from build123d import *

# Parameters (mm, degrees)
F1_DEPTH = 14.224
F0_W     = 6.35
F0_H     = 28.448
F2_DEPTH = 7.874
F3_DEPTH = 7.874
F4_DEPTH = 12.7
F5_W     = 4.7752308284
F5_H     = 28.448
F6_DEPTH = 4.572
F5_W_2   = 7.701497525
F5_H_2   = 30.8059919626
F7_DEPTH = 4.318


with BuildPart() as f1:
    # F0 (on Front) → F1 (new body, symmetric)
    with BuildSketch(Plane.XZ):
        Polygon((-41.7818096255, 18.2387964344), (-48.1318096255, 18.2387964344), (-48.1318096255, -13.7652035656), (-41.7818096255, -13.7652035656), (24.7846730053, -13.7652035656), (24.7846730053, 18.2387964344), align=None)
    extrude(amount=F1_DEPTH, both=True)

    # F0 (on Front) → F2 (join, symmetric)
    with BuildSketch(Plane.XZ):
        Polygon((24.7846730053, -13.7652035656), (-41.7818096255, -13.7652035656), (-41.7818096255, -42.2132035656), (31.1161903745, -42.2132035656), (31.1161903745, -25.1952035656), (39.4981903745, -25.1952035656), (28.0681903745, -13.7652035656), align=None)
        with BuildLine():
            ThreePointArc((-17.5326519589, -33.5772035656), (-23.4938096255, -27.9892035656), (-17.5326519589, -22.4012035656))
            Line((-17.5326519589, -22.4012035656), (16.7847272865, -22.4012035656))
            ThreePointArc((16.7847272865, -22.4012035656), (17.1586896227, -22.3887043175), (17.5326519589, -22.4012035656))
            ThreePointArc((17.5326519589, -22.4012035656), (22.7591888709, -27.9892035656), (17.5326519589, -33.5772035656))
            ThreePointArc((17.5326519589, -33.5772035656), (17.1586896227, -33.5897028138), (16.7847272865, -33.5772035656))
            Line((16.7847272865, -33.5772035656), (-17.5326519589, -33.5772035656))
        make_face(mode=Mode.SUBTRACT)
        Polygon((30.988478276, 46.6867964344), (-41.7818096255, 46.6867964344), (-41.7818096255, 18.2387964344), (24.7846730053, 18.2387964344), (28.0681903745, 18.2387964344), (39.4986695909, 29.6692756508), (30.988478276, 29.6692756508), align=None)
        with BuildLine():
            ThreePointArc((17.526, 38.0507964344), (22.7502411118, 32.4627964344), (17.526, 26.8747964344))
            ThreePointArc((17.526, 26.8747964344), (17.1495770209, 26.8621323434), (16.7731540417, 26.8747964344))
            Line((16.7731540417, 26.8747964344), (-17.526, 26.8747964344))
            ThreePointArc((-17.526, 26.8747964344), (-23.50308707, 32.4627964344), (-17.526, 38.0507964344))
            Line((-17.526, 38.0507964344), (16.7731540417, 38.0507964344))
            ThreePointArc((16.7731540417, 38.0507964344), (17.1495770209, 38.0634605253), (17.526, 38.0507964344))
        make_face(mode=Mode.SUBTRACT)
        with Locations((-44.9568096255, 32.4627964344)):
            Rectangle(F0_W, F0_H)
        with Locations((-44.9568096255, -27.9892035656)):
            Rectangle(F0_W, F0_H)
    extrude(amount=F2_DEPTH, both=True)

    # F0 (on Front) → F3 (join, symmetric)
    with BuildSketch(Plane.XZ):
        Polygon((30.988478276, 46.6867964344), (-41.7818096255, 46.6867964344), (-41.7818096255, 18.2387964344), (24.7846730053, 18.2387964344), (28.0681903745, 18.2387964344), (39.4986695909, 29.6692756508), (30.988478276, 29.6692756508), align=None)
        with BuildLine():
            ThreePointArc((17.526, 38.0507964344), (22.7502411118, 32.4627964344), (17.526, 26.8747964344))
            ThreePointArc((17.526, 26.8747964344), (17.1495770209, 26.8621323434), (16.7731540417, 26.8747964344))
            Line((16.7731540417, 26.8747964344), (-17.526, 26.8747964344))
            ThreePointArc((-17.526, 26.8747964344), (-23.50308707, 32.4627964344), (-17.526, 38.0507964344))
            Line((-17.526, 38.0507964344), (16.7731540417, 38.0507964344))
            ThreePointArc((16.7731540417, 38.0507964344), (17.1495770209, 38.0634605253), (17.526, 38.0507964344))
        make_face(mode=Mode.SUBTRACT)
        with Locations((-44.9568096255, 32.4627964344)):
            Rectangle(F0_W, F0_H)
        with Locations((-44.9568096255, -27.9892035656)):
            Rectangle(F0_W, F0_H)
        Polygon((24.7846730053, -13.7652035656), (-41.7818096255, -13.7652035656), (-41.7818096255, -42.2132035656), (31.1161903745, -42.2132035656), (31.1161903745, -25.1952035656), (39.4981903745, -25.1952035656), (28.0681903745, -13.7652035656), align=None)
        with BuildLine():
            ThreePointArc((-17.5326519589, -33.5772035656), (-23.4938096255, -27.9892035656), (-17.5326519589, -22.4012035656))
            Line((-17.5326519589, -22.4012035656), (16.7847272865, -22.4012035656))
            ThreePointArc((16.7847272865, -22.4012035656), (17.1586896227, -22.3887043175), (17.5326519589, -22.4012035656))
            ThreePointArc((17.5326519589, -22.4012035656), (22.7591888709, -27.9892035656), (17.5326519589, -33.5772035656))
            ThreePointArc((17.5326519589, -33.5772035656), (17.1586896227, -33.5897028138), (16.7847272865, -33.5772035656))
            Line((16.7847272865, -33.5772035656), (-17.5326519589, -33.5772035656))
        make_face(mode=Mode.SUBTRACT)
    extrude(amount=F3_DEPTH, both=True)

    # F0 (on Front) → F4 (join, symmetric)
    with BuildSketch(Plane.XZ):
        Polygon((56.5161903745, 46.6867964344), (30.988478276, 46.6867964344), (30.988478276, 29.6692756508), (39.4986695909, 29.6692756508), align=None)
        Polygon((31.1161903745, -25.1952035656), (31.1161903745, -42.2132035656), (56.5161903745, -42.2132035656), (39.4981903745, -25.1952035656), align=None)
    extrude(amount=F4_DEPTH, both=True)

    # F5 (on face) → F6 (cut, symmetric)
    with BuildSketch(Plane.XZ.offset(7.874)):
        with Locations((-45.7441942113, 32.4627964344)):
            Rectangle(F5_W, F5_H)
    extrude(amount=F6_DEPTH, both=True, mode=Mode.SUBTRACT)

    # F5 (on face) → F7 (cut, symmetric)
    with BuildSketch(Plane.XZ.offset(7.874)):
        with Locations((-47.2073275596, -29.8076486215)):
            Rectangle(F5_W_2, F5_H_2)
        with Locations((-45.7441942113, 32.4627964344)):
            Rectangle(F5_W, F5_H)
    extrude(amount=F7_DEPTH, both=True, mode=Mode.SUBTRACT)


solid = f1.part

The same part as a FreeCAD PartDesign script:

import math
import FreeCAD as App
import Part
import Sketcher

V = App.Vector
Q = App.Units.Quantity

doc = App.newDocument("Part")
body = doc.addObject("PartDesign::Body", "Body")

sketch1 = doc.addObject("Sketcher::SketchObject", "Sketch")
body.addObject(sketch1)
sketch1.AttachmentSupport = (doc.XZ_Plane, [""])
sketch1.MapMode = "FlatFace"
sketch1.addGeometry(Part.LineSegment(V(-48, 18, 0), V(-48, -14, 0)), False)
sketch1.addGeometry(Part.LineSegment(V(-48, -14, 0), V(25, -14, 0)), False)
sketch1.addGeometry(Part.LineSegment(V(25, -14, 0), V(25, 18, 0)), False)
sketch1.addGeometry(Part.LineSegment(V(25, 18, 0), V(-48, 18, 0)), False)
sketch1.addConstraint(Sketcher.Constraint("Coincident", 0, 2, 1, 1))
sketch1.addConstraint(Sketcher.Constraint("Coincident", 1, 2, 2, 1))
sketch1.addConstraint(Sketcher.Constraint("Coincident", 2, 2, 3, 1))
sketch1.addConstraint(Sketcher.Constraint("Coincident", 3, 2, 0, 1))
sketch1.addConstraint(Sketcher.Constraint("Vertical", 0))
sketch1.addConstraint(Sketcher.Constraint("Horizontal", 1))
sketch1.addConstraint(Sketcher.Constraint("Vertical", 2))
sketch1.addConstraint(Sketcher.Constraint("Horizontal", 3))
sketch1.addConstraint(Sketcher.Constraint("DistanceY", 0, 2, 0, 1, Q("1.26 in")))
sketch1.addConstraint(Sketcher.Constraint("DistanceX", 1, 1, 1, 2, Q("72.916483 mm")))
sketch1.addConstraint(Sketcher.Constraint("DistanceX", 0, 2, -1, 1, Q("48.13181 mm")))
sketch1.addConstraint(Sketcher.Constraint("DistanceY", 0, 2, -1, 1, Q("13.765204 mm")))
pad1 = doc.addObject("PartDesign::Pad", "Pad")
body.addObject(pad1)
pad1.Profile = sketch1
pad1.Length = Q("1.12 in")
pad1.Midplane = True

sketch2 = doc.addObject("Sketcher::SketchObject", "Sketch001")
body.addObject(sketch2)
sketch2.AttachmentSupport = (doc.XZ_Plane, [""])
sketch2.MapMode = "FlatFace"
sketch2.addGeometry(Part.LineSegment(V(28.1, -13.8, 0), V(-48.1, -13.8, 0)), False)
sketch2.addGeometry(Part.LineSegment(V(-48.1, -13.8, 0), V(-48.1, -42.2, 0)), False)
sketch2.addGeometry(Part.LineSegment(V(-48.1, -42.2, 0), V(31.1, -42.2, 0)), False)
sketch2.addGeometry(Part.LineSegment(V(31.1, -42.2, 0), V(31.1, -25.2, 0)), False)
sketch2.addGeometry(Part.LineSegment(V(31.1, -25.2, 0), V(39.5, -25.2, 0)), False)
sketch2.addGeometry(Part.LineSegment(V(39.5, -25.2, 0), V(28.1, -13.8, 0)), False)
sketch2.addGeometry(Part.LineSegment(V(16.8, -33.6, 0), V(-17.5, -33.6, 0)), False)
sketch2.addGeometry(Part.ArcOfCircle(Part.Circle(V(-17.9, -28, 0), V(0, 0, 1), 5.6), math.radians(86), math.radians(274)), False)
sketch2.addGeometry(Part.LineSegment(V(-17.5, -22.4, 0), V(16.8, -22.4, 0)), False)
sketch2.addGeometry(Part.ArcOfCircle(Part.Circle(V(17.2, -28, 0), V(0, 0, 1), 5.6), math.radians(86.17), math.radians(93.83)), False)
sketch2.addGeometry(Part.ArcOfCircle(Part.Circle(V(17.2, -28, 0), V(0, 0, 1), 5.6), math.radians(-86), math.radians(86)), False)
sketch2.addGeometry(Part.ArcOfCircle(Part.Circle(V(17.2, -28, 0), V(0, 0, 1), 5.6), math.radians(-93.83), math.radians(-86.17)), False)
sketch2.addGeometry(Part.LineSegment(V(31, 46.7, 0), V(-48.1, 46.7, 0)), False)
sketch2.addGeometry(Part.LineSegment(V(-48.1, 46.7, 0), V(-48.1, 18.2, 0)), False)
sketch2.addGeometry(Part.LineSegment(V(-48.1, 18.2, 0), V(28.1, 18.2, 0)), False)
sketch2.addGeometry(Part.LineSegment(V(28.1, 18.2, 0), V(39.5, 29.7, 0)), False)
sketch2.addGeometry(Part.LineSegment(V(39.5, 29.7, 0), V(31, 29.7, 0)), False)
sketch2.addGeometry(Part.LineSegment(V(31, 29.7, 0), V(31, 46.7, 0)), False)
sketch2.addGeometry(Part.ArcOfCircle(Part.Circle(V(17.1, 32.5, 0), V(0, 0, 1), 5.6), math.radians(86.15), math.radians(93.85)), False)
sketch2.addGeometry(Part.ArcOfCircle(Part.Circle(V(17.1, 32.5, 0), V(0, 0, 1), 5.6), math.radians(-86), math.radians(86)), False)
sketch2.addGeometry(Part.ArcOfCircle(Part.Circle(V(17.1, 32.5, 0), V(0, 0, 1), 5.6), math.radians(-93.85), math.radians(-86.15)), False)
sketch2.addGeometry(Part.LineSegment(V(16.8, 26.9, 0), V(-17.5, 26.9, 0)), False)
sketch2.addGeometry(Part.ArcOfCircle(Part.Circle(V(-17.9, 32.5, 0), V(0, 0, 1), 5.6), math.radians(86), math.radians(274)), False)
sketch2.addGeometry(Part.LineSegment(V(-17.5, 38.1, 0), V(16.8, 38.1, 0)), False)
sketch2.addConstraint(Sketcher.Constraint("Coincident", 0, 2, 1, 1))
sketch2.addConstraint(Sketcher.Constraint("Coincident", 1, 2, 2, 1))
sketch2.addConstraint(Sketcher.Constraint("Coincident", 2, 2, 3, 1))
sketch2.addConstraint(Sketcher.Constraint("Coincident", 3, 2, 4, 1))
sketch2.addConstraint(Sketcher.Constraint("Coincident", 4, 2, 5, 1))
sketch2.addConstraint(Sketcher.Constraint("Coincident", 5, 2, 0, 1))
sketch2.addConstraint(Sketcher.Constraint("Coincident", 6, 2, 7, 2))
sketch2.addConstraint(Sketcher.Constraint("Coincident", 7, 1, 8, 1))
sketch2.addConstraint(Sketcher.Constraint("Coincident", 8, 2, 9, 2))
sketch2.addConstraint(Sketcher.Constraint("Tangent", 9, 1, 10, 2))
sketch2.addConstraint(Sketcher.Constraint("Tangent", 10, 1, 11, 2))
sketch2.addConstraint(Sketcher.Constraint("Coincident", 11, 1, 6, 1))
sketch2.addConstraint(Sketcher.Constraint("Coincident", 12, 2, 13, 1))
sketch2.addConstraint(Sketcher.Constraint("Coincident", 13, 2, 14, 1))
sketch2.addConstraint(Sketcher.Constraint("Coincident", 14, 2, 15, 1))
sketch2.addConstraint(Sketcher.Constraint("Coincident", 15, 2, 16, 1))
sketch2.addConstraint(Sketcher.Constraint("Coincident", 16, 2, 17, 1))
sketch2.addConstraint(Sketcher.Constraint("Coincident", 17, 2, 12, 1))
sketch2.addConstraint(Sketcher.Constraint("Tangent", 18, 1, 19, 2))
sketch2.addConstraint(Sketcher.Constraint("Tangent", 19, 1, 20, 2))
sketch2.addConstraint(Sketcher.Constraint("Coincident", 20, 1, 21, 1))
sketch2.addConstraint(Sketcher.Constraint("Coincident", 21, 2, 22, 2))
sketch2.addConstraint(Sketcher.Constraint("Coincident", 22, 1, 23, 1))
sketch2.addConstraint(Sketcher.Constraint("Coincident", 23, 2, 18, 2))
sketch2.addConstraint(Sketcher.Constraint("Horizontal", 0))
sketch2.addConstraint(Sketcher.Constraint("Vertical", 1))
sketch2.addConstraint(Sketcher.Constraint("Horizontal", 2))
sketch2.addConstraint(Sketcher.Constraint("Vertical", 3))
sketch2.addConstraint(Sketcher.Constraint("Horizontal", 4))
sketch2.addConstraint(Sketcher.Constraint("Horizontal", 6))
sketch2.addConstraint(Sketcher.Constraint("Horizontal", 8))
sketch2.addConstraint(Sketcher.Constraint("Horizontal", 12))
sketch2.addConstraint(Sketcher.Constraint("Vertical", 13))
sketch2.addConstraint(Sketcher.Constraint("Horizontal", 14))
sketch2.addConstraint(Sketcher.Constraint("Horizontal", 16))
sketch2.addConstraint(Sketcher.Constraint("Vertical", 17))
sketch2.addConstraint(Sketcher.Constraint("Horizontal", 21))
sketch2.addConstraint(Sketcher.Constraint("Horizontal", 23))
sketch2.addConstraint(Sketcher.Constraint("Coincident", 11, 3, 9, 3))
sketch2.addConstraint(Sketcher.Constraint("Coincident", 20, 3, 18, 3))
sketch2.addConstraint(Sketcher.Constraint("Equal", 20, 22))
sketch2.addConstraint(Sketcher.Constraint("Symmetric", 7, 1, 9, 1, -2))
sketch2.addConstraint(Sketcher.Constraint("Symmetric", 6, 2, 10, 1, -2))
sketch2.addConstraint(Sketcher.Constraint("Symmetric", 19, 1, 21, 2, -2))
sketch2.addConstraint(Sketcher.Constraint("Symmetric", 18, 1, 22, 1, -2))
sketch2.addConstraint(Sketcher.Constraint("Perpendicular", 5, 15))
sketch2.addConstraint(Sketcher.Constraint("Horizontal", 7, 3, 9, 3))
sketch2.addConstraint(Sketcher.Constraint("Horizontal", 20, 3, 22, 3))
sketch2.addConstraint(Sketcher.Constraint("Vertical", 1, 2, 12, 2))
sketch2.addConstraint(Sketcher.Constraint("Vertical", 5, 2, 14, 2))
sketch2.addConstraint(Sketcher.Constraint("Equal", 1, 13))
sketch2.addConstraint(Sketcher.Constraint("DistanceX", 0, 2, 0, 1, Q("3 in")))
sketch2.addConstraint(Sketcher.Constraint("Angle", 5, Q("135 deg")))
sketch2.addConstraint(Sketcher.Constraint("DistanceX", 2, 1, 2, 2, Q("3.12 in")))
sketch2.addConstraint(Sketcher.Constraint("DistanceX", 4, 1, 4, 2, Q("0.33 in")))
sketch2.addConstraint(Sketcher.Constraint("DistanceY", 1, 2, 1, 1, Q("1.12 in")))
sketch2.addConstraint(Sketcher.Constraint("DistanceY", 7, 1, 13, 2, Q("1.6 in")))
sketch2.addConstraint(Sketcher.Constraint("DistanceX", -1, 1, 18, 1, Q("0.69 in")))
sketch2.addConstraint(Sketcher.Constraint("Radius", 9, Q("5.600499 mm")))
sketch2.addConstraint(Sketcher.Constraint("DistanceY", 10, 3, 18, 3, Q("2.38 in")))
sketch2.addConstraint(Sketcher.Constraint("DistanceY", 7, 3, 0, 2, Q("0.56 in")))
sketch2.addConstraint(Sketcher.Constraint("DistanceY", 6, 2, 7, 3, Q("0.22 in")))
sketch2.addConstraint(Sketcher.Constraint("DistanceY", 19, 3, 18, 1, Q("0.22 in")))
sketch2.addConstraint(Sketcher.Constraint("Radius", 7, Q("5.599679 mm")))
sketch2.addConstraint(Sketcher.Constraint("Radius", 18, Q("5.600664 mm")))
sketch2.addConstraint(Sketcher.Constraint("DistanceX", 6, 2, 6, 1, Q("34.317379 mm")))
sketch2.addConstraint(Sketcher.Constraint("DistanceX", 16, 2, 16, 1, Q("8.510191 mm")))
sketch2.addConstraint(Sketcher.Constraint("DistanceY", 17, 1, 17, 2, Q("17.017521 mm")))
sketch2.addConstraint(Sketcher.Constraint("DistanceX", 0, 2, 10, 3, Q("65.290499 mm")))
sketch2.addConstraint(Sketcher.Constraint("DistanceY", 7, 3, -1, 1, Q("27.989204 mm")))
pad2 = doc.addObject("PartDesign::Pad", "Pad001")
body.addObject(pad2)
pad2.Profile = sketch2
pad2.Length = Q("0.62 in")
pad2.Midplane = True

sketch3 = doc.addObject("Sketcher::SketchObject", "Sketch002")
body.addObject(sketch3)
sketch3.AttachmentSupport = (doc.XZ_Plane, [""])
sketch3.MapMode = "FlatFace"
sketch3.addGeometry(Part.LineSegment(V(31, 46.7, 0), V(-48.1, 46.7, 0)), False)
sketch3.addGeometry(Part.LineSegment(V(-48.1, 46.7, 0), V(-48.1, 18.2, 0)), False)
sketch3.addGeometry(Part.LineSegment(V(-48.1, 18.2, 0), V(28.1, 18.2, 0)), False)
sketch3.addGeometry(Part.LineSegment(V(28.1, 18.2, 0), V(39.5, 29.7, 0)), False)
sketch3.addGeometry(Part.LineSegment(V(39.5, 29.7, 0), V(31, 29.7, 0)), False)
sketch3.addGeometry(Part.LineSegment(V(31, 29.7, 0), V(31, 46.7, 0)), False)
sketch3.addGeometry(Part.ArcOfCircle(Part.Circle(V(17.1, 32.5, 0), V(0, 0, 1), 5.6), math.radians(86.15), math.radians(93.85)), False)
sketch3.addGeometry(Part.ArcOfCircle(Part.Circle(V(17.1, 32.5, 0), V(0, 0, 1), 5.6), math.radians(-86), math.radians(86)), False)
sketch3.addGeometry(Part.ArcOfCircle(Part.Circle(V(17.1, 32.5, 0), V(0, 0, 1), 5.6), math.radians(-93.85), math.radians(-86.15)), False)
sketch3.addGeometry(Part.LineSegment(V(16.8, 26.9, 0), V(-17.5, 26.9, 0)), False)
sketch3.addGeometry(Part.ArcOfCircle(Part.Circle(V(-17.9, 32.5, 0), V(0, 0, 1), 5.6), math.radians(86), math.radians(274)), False)
sketch3.addGeometry(Part.LineSegment(V(-17.5, 38.1, 0), V(16.8, 38.1, 0)), False)
sketch3.addGeometry(Part.LineSegment(V(-48.1, -13.8, 0), V(-48.1, -42.2, 0)), False)
sketch3.addGeometry(Part.LineSegment(V(-48.1, -42.2, 0), V(31.1, -42.2, 0)), False)
sketch3.addGeometry(Part.LineSegment(V(31.1, -42.2, 0), V(31.1, -25.2, 0)), False)
sketch3.addGeometry(Part.LineSegment(V(31.1, -25.2, 0), V(39.5, -25.2, 0)), False)
sketch3.addGeometry(Part.LineSegment(V(39.5, -25.2, 0), V(28.1, -13.8, 0)), False)
sketch3.addGeometry(Part.LineSegment(V(28.1, -13.8, 0), V(-48.1, -13.8, 0)), False)
sketch3.addGeometry(Part.LineSegment(V(16.8, -33.6, 0), V(-17.5, -33.6, 0)), False)
sketch3.addGeometry(Part.ArcOfCircle(Part.Circle(V(-17.9, -28, 0), V(0, 0, 1), 5.6), math.radians(86), math.radians(274)), False)
sketch3.addGeometry(Part.LineSegment(V(-17.5, -22.4, 0), V(16.8, -22.4, 0)), False)
sketch3.addGeometry(Part.ArcOfCircle(Part.Circle(V(17.2, -28, 0), V(0, 0, 1), 5.6), math.radians(86.17), math.radians(93.83)), False)
sketch3.addGeometry(Part.ArcOfCircle(Part.Circle(V(17.2, -28, 0), V(0, 0, 1), 5.6), math.radians(-86), math.radians(86)), False)
sketch3.addGeometry(Part.ArcOfCircle(Part.Circle(V(17.2, -28, 0), V(0, 0, 1), 5.6), math.radians(-93.83), math.radians(-86.17)), False)
sketch3.addConstraint(Sketcher.Constraint("Coincident", 0, 2, 1, 1))
sketch3.addConstraint(Sketcher.Constraint("Coincident", 1, 2, 2, 1))
sketch3.addConstraint(Sketcher.Constraint("Coincident", 2, 2, 3, 1))
sketch3.addConstraint(Sketcher.Constraint("Coincident", 3, 2, 4, 1))
sketch3.addConstraint(Sketcher.Constraint("Coincident", 4, 2, 5, 1))
sketch3.addConstraint(Sketcher.Constraint("Coincident", 5, 2, 0, 1))
sketch3.addConstraint(Sketcher.Constraint("Tangent", 6, 1, 7, 2))
sketch3.addConstraint(Sketcher.Constraint("Tangent", 7, 1, 8, 2))
sketch3.addConstraint(Sketcher.Constraint("Coincident", 8, 1, 9, 1))
sketch3.addConstraint(Sketcher.Constraint("Coincident", 9, 2, 10, 2))
sketch3.addConstraint(Sketcher.Constraint("Coincident", 10, 1, 11, 1))
sketch3.addConstraint(Sketcher.Constraint("Coincident", 11, 2, 6, 2))
sketch3.addConstraint(Sketcher.Constraint("Coincident", 12, 2, 13, 1))
sketch3.addConstraint(Sketcher.Constraint("Coincident", 13, 2, 14, 1))
sketch3.addConstraint(Sketcher.Constraint("Coincident", 14, 2, 15, 1))
sketch3.addConstraint(Sketcher.Constraint("Coincident", 15, 2, 16, 1))
sketch3.addConstraint(Sketcher.Constraint("Coincident", 16, 2, 17, 1))
sketch3.addConstraint(Sketcher.Constraint("Coincident", 17, 2, 12, 1))
sketch3.addConstraint(Sketcher.Constraint("Coincident", 18, 2, 19, 2))
sketch3.addConstraint(Sketcher.Constraint("Coincident", 19, 1, 20, 1))
sketch3.addConstraint(Sketcher.Constraint("Coincident", 20, 2, 21, 2))
sketch3.addConstraint(Sketcher.Constraint("Tangent", 21, 1, 22, 2))
sketch3.addConstraint(Sketcher.Constraint("Tangent", 22, 1, 23, 2))
sketch3.addConstraint(Sketcher.Constraint("Coincident", 23, 1, 18, 1))
sketch3.addConstraint(Sketcher.Constraint("Horizontal", 0))
sketch3.addConstraint(Sketcher.Constraint("Vertical", 1))
sketch3.addConstraint(Sketcher.Constraint("Horizontal", 2))
sketch3.addConstraint(Sketcher.Constraint("Horizontal", 4))
sketch3.addConstraint(Sketcher.Constraint("Vertical", 5))
sketch3.addConstraint(Sketcher.Constraint("Horizontal", 9))
sketch3.addConstraint(Sketcher.Constraint("Horizontal", 11))
sketch3.addConstraint(Sketcher.Constraint("Vertical", 12))
sketch3.addConstraint(Sketcher.Constraint("Horizontal", 13))
sketch3.addConstraint(Sketcher.Constraint("Vertical", 14))
sketch3.addConstraint(Sketcher.Constraint("Horizontal", 15))
sketch3.addConstraint(Sketcher.Constraint("Horizontal", 17))
sketch3.addConstraint(Sketcher.Constraint("Horizontal", 18))
sketch3.addConstraint(Sketcher.Constraint("Horizontal", 20))
sketch3.addConstraint(Sketcher.Constraint("Coincident", 8, 3, 6, 3))
sketch3.addConstraint(Sketcher.Constraint("Coincident", 23, 3, 21, 3))
sketch3.addConstraint(Sketcher.Constraint("Equal", 8, 10))
sketch3.addConstraint(Sketcher.Constraint("Symmetric", 7, 1, 9, 2, -2))
sketch3.addConstraint(Sketcher.Constraint("Symmetric", 6, 1, 10, 1, -2))
sketch3.addConstraint(Sketcher.Constraint("Symmetric", 19, 1, 21, 1, -2))
sketch3.addConstraint(Sketcher.Constraint("Symmetric", 18, 2, 22, 1, -2))
sketch3.addConstraint(Sketcher.Constraint("Perpendicular", 3, 16))
sketch3.addConstraint(Sketcher.Constraint("Horizontal", 8, 3, 10, 3))
sketch3.addConstraint(Sketcher.Constraint("Horizontal", 19, 3, 21, 3))
sketch3.addConstraint(Sketcher.Constraint("Vertical", 1, 2, 12, 2))
sketch3.addConstraint(Sketcher.Constraint("Vertical", 2, 2, 16, 2))
sketch3.addConstraint(Sketcher.Constraint("Equal", 1, 12))
sketch3.addConstraint(Sketcher.Constraint("DistanceX", 2, 1, 2, 2, Q("3 in")))
sketch3.addConstraint(Sketcher.Constraint("Angle", 3, Q("45 deg")))
sketch3.addConstraint(Sketcher.Constraint("DistanceX", 13, 1, 13, 2, Q("3.12 in")))
sketch3.addConstraint(Sketcher.Constraint("DistanceX", 15, 1, 15, 2, Q("0.33 in")))
sketch3.addConstraint(Sketcher.Constraint("DistanceY", 1, 2, 1, 1, Q("1.12 in")))
sketch3.addConstraint(Sketcher.Constraint("DistanceY", 17, 2, 9, 2, Q("1.6 in")))
sketch3.addConstraint(Sketcher.Constraint("DistanceX", -1, 1, 6, 1, Q("0.69 in")))
sketch3.addConstraint(Sketcher.Constraint("Radius", 21, Q("5.600499 mm")))
sketch3.addConstraint(Sketcher.Constraint("DistanceY", 19, 3, 10, 3, Q("2.38 in")))
sketch3.addConstraint(Sketcher.Constraint("DistanceY", 10, 3, 0, 2, Q("0.56 in")))
sketch3.addConstraint(Sketcher.Constraint("DistanceY", 7, 3, 6, 1, Q("0.22 in")))
sketch3.addConstraint(Sketcher.Constraint("DistanceY", 18, 2, 19, 3, Q("0.22 in")))
sketch3.addConstraint(Sketcher.Constraint("Radius", 19, Q("5.599679 mm")))
sketch3.addConstraint(Sketcher.Constraint("Radius", 6, Q("5.600664 mm")))
sketch3.addConstraint(Sketcher.Constraint("DistanceX", 4, 2, 4, 1, Q("8.510191 mm")))
sketch3.addConstraint(Sketcher.Constraint("DistanceX", 18, 2, 18, 1, Q("34.317379 mm")))
sketch3.addConstraint(Sketcher.Constraint("DistanceY", 5, 1, 5, 2, Q("17.017521 mm")))
sketch3.addConstraint(Sketcher.Constraint("DistanceX", 22, 3, 2, 2, Q("10.909501 mm")))
sketch3.addConstraint(Sketcher.Constraint("DistanceY", -1, 1, 6, 3, Q("32.462796 mm")))
pad3 = doc.addObject("PartDesign::Pad", "Pad002")
body.addObject(pad3)
pad3.Profile = sketch3
pad3.Length = Q("0.62 in")
pad3.Midplane = True

sketch4 = doc.addObject("Sketcher::SketchObject", "Sketch003")
body.addObject(sketch4)
sketch4.AttachmentSupport = (doc.XZ_Plane, [""])
sketch4.MapMode = "FlatFace"
sketch4.addGeometry(Part.LineSegment(V(57, 47, 0), V(31, 47, 0)), False)
sketch4.addGeometry(Part.LineSegment(V(31, 47, 0), V(31, 30, 0)), False)
sketch4.addGeometry(Part.LineSegment(V(31, 30, 0), V(39, 30, 0)), False)
sketch4.addGeometry(Part.LineSegment(V(39, 30, 0), V(57, 47, 0)), False)
sketch4.addGeometry(Part.LineSegment(V(31, -25, 0), V(31, -42, 0)), False)
sketch4.addGeometry(Part.LineSegment(V(31, -42, 0), V(57, -42, 0)), False)
sketch4.addGeometry(Part.LineSegment(V(57, -42, 0), V(39, -25, 0)), False)
sketch4.addGeometry(Part.LineSegment(V(39, -25, 0), V(31, -25, 0)), False)
sketch4.addConstraint(Sketcher.Constraint("Coincident", 0, 2, 1, 1))
sketch4.addConstraint(Sketcher.Constraint("Coincident", 1, 2, 2, 1))
sketch4.addConstraint(Sketcher.Constraint("Coincident", 2, 2, 3, 1))
sketch4.addConstraint(Sketcher.Constraint("Coincident", 3, 2, 0, 1))
sketch4.addConstraint(Sketcher.Constraint("Coincident", 4, 2, 5, 1))
sketch4.addConstraint(Sketcher.Constraint("Coincident", 5, 2, 6, 1))
sketch4.addConstraint(Sketcher.Constraint("Coincident", 6, 2, 7, 1))
sketch4.addConstraint(Sketcher.Constraint("Coincident", 7, 2, 4, 1))
sketch4.addConstraint(Sketcher.Constraint("Horizontal", 0))
sketch4.addConstraint(Sketcher.Constraint("Vertical", 1))
sketch4.addConstraint(Sketcher.Constraint("Horizontal", 2))
sketch4.addConstraint(Sketcher.Constraint("Vertical", 4))
sketch4.addConstraint(Sketcher.Constraint("Horizontal", 5))
sketch4.addConstraint(Sketcher.Constraint("Horizontal", 7))
sketch4.addConstraint(Sketcher.Constraint("Perpendicular", 3, 6))
sketch4.addConstraint(Sketcher.Constraint("Vertical", 3, 2, 5, 2))
sketch4.addConstraint(Sketcher.Constraint("DistanceX", 5, 1, 5, 2, Q("1 in")))
sketch4.addConstraint(Sketcher.Constraint("Angle", 3, Q("45 deg")))
sketch4.addConstraint(Sketcher.Constraint("DistanceX", 7, 2, 7, 1, Q("0.33 in")))
sketch4.addConstraint(Sketcher.Constraint("DistanceY", 4, 2, 0, 2, Q("3.5 in")))
sketch4.addConstraint(Sketcher.Constraint("DistanceX", 2, 1, 2, 2, Q("8.510191 mm")))
sketch4.addConstraint(Sketcher.Constraint("DistanceY", 1, 2, 1, 1, Q("17.017521 mm")))
sketch4.addConstraint(Sketcher.Constraint("DistanceX", -1, 1, 0, 2, Q("30.988478 mm")))
sketch4.addConstraint(Sketcher.Constraint("DistanceY", -1, 1, 0, 2, Q("46.686796 mm")))
pad4 = doc.addObject("PartDesign::Pad", "Pad003")
body.addObject(pad4)
pad4.Profile = sketch4
pad4.Length = Q("1 in")
pad4.Midplane = True

sketch5 = doc.addObject("Sketcher::SketchObject", "Sketch004")
body.addObject(sketch5)
sketch5.AttachmentSupport = (doc.XZ_Plane, [""])
sketch5.MapMode = "FlatFace"
sketch5.AttachmentOffset = App.Placement(V(0, 0, 0.31 * 25.4), App.Rotation())
sketch5.addGeometry(Part.LineSegment(V(-48.1, 46.7, 0), V(-48.1, 18.2, 0)), False)
sketch5.addGeometry(Part.LineSegment(V(-48.1, 18.2, 0), V(-43.4, 18.2, 0)), False)
sketch5.addGeometry(Part.LineSegment(V(-43.4, 18.2, 0), V(-43.4, 46.7, 0)), False)
sketch5.addGeometry(Part.LineSegment(V(-43.4, 46.7, 0), V(-48.1, 46.7, 0)), False)
sketch5.addConstraint(Sketcher.Constraint("Coincident", 0, 2, 1, 1))
sketch5.addConstraint(Sketcher.Constraint("Coincident", 1, 2, 2, 1))
sketch5.addConstraint(Sketcher.Constraint("Coincident", 2, 2, 3, 1))
sketch5.addConstraint(Sketcher.Constraint("Coincident", 3, 2, 0, 1))
sketch5.addConstraint(Sketcher.Constraint("Vertical", 0))
sketch5.addConstraint(Sketcher.Constraint("Horizontal", 1))
sketch5.addConstraint(Sketcher.Constraint("Vertical", 2))
sketch5.addConstraint(Sketcher.Constraint("Horizontal", 3))
sketch5.addConstraint(Sketcher.Constraint("DistanceY", 0, 2, 0, 1, Q("1.12 in")))
sketch5.addConstraint(Sketcher.Constraint("DistanceX", 1, 1, 1, 2, Q("4.775231 mm")))
sketch5.addConstraint(Sketcher.Constraint("DistanceX", 0, 2, -1, 1, Q("48.13181 mm")))
sketch5.addConstraint(Sketcher.Constraint("DistanceY", -1, 1, 0, 2, Q("18.238796 mm")))
pocket1 = doc.addObject("PartDesign::Pocket", "Pocket")
body.addObject(pocket1)
pocket1.Profile = sketch5
pocket1.Length = Q("0.36 in")
pocket1.Midplane = True

sketch6 = doc.addObject("Sketcher::SketchObject", "Sketch005")
body.addObject(sketch6)
sketch6.AttachmentSupport = (doc.XZ_Plane, [""])
sketch6.MapMode = "FlatFace"
sketch6.AttachmentOffset = App.Placement(V(0, 0, 0.31 * 25.4), App.Rotation())
sketch6.addGeometry(Part.LineSegment(V(-51.1, -14.4, 0), V(-51.1, -45.2, 0)), False)
sketch6.addGeometry(Part.LineSegment(V(-51.1, -45.2, 0), V(-43.4, -45.2, 0)), False)
sketch6.addGeometry(Part.LineSegment(V(-43.4, -45.2, 0), V(-43.4, -14.4, 0)), False)
sketch6.addGeometry(Part.LineSegment(V(-43.4, -14.4, 0), V(-51.1, -14.4, 0)), False)
sketch6.addGeometry(Part.LineSegment(V(-48.1, 46.7, 0), V(-48.1, 18.2, 0)), False)
sketch6.addGeometry(Part.LineSegment(V(-48.1, 18.2, 0), V(-43.4, 18.2, 0)), False)
sketch6.addGeometry(Part.LineSegment(V(-43.4, 18.2, 0), V(-43.4, 46.7, 0)), False)
sketch6.addGeometry(Part.LineSegment(V(-43.4, 46.7, 0), V(-48.1, 46.7, 0)), False)
sketch6.addConstraint(Sketcher.Constraint("Coincident", 0, 2, 1, 1))
sketch6.addConstraint(Sketcher.Constraint("Coincident", 1, 2, 2, 1))
sketch6.addConstraint(Sketcher.Constraint("Coincident", 2, 2, 3, 1))
sketch6.addConstraint(Sketcher.Constraint("Coincident", 3, 2, 0, 1))
sketch6.addConstraint(Sketcher.Constraint("Coincident", 4, 2, 5, 1))
sketch6.addConstraint(Sketcher.Constraint("Coincident", 5, 2, 6, 1))
sketch6.addConstraint(Sketcher.Constraint("Coincident", 6, 2, 7, 1))
sketch6.addConstraint(Sketcher.Constraint("Coincident", 7, 2, 4, 1))
sketch6.addConstraint(Sketcher.Constraint("Vertical", 0))
sketch6.addConstraint(Sketcher.Constraint("Horizontal", 1))
sketch6.addConstraint(Sketcher.Constraint("Vertical", 2))
sketch6.addConstraint(Sketcher.Constraint("Horizontal", 3))
sketch6.addConstraint(Sketcher.Constraint("Vertical", 4))
sketch6.addConstraint(Sketcher.Constraint("Horizontal", 5))
sketch6.addConstraint(Sketcher.Constraint("Vertical", 6))
sketch6.addConstraint(Sketcher.Constraint("Horizontal", 7))
sketch6.addConstraint(Sketcher.Constraint("Vertical", 2, 2, 5, 2))
sketch6.addConstraint(Sketcher.Constraint("DistanceY", 4, 2, 4, 1, Q("1.12 in")))
sketch6.addConstraint(Sketcher.Constraint("DistanceX", 5, 1, 5, 2, Q("4.775231 mm")))
sketch6.addConstraint(Sketcher.Constraint("DistanceY", 0, 2, 0, 1, Q("30.805992 mm")))
sketch6.addConstraint(Sketcher.Constraint("DistanceX", 1, 1, 1, 2, Q("7.701498 mm")))
sketch6.addConstraint(Sketcher.Constraint("DistanceX", 1, 2, -1, 1, Q("43.356579 mm")))
sketch6.addConstraint(Sketcher.Constraint("DistanceY", 3, 2, 4, 2, Q("32.643449 mm")))
sketch6.addConstraint(Sketcher.Constraint("DistanceY", 0, 2, -1, 1, Q("45.210645 mm")))
pocket2 = doc.addObject("PartDesign::Pocket", "Pocket001")
body.addObject(pocket2)
pocket2.Profile = sketch6
pocket2.Length = Q("0.34 in")
pocket2.Midplane = True

doc.recompute()
